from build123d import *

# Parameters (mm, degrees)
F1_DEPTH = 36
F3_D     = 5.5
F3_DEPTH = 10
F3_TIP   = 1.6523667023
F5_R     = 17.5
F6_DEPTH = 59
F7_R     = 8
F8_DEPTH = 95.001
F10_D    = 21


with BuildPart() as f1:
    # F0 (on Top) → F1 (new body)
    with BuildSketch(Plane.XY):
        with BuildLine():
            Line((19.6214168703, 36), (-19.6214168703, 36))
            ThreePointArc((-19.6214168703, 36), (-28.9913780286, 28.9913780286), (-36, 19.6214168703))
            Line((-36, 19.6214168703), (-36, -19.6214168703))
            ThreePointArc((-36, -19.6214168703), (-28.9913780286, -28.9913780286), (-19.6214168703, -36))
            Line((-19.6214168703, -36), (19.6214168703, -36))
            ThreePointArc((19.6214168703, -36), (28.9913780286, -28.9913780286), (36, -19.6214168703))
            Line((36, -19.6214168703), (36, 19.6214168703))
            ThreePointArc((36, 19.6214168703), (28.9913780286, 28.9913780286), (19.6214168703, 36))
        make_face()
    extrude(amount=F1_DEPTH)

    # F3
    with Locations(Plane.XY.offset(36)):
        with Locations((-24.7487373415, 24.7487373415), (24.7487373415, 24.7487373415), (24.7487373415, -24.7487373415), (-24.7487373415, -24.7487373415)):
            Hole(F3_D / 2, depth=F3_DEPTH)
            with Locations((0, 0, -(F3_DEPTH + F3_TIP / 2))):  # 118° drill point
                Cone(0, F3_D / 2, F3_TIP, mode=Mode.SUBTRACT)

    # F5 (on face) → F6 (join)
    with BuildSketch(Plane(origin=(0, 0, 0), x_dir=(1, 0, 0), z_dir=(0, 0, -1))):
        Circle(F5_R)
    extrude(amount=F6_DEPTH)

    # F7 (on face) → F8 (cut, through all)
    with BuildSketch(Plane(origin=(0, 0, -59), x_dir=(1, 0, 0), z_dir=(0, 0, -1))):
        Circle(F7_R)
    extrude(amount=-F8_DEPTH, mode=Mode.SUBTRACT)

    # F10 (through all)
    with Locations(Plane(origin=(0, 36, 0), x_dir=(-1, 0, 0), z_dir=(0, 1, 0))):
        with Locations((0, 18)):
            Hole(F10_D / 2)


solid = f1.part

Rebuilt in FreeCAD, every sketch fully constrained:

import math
import FreeCAD as App
import Part
import Sketcher
from FreeCAD import Vector
Q = App.Units.Quantity

doc = App.newDocument("Part")
body = doc.addObject("PartDesign::Body", "Body")

sketch1 = body.newObject("Sketcher::SketchObject", "Sketch")
sketch1.AttachmentSupport = (doc.getObject("XY_Plane"), [""])
sketch1.MapMode = "FlatFace"
sketch1.addGeometry([
    Part.LineSegment(Vector(19.621417, 36, 0), Vector(-19.621417, 36, 0)),
    Part.ArcOfCircle(Part.Circle(Vector(0, 0, 0), Vector(0, 0, 1), 41), math.radians(118.592123), math.radians(151.407877)),
    Part.LineSegment(Vector(-36, 19.621417, 0), Vector(-36, -19.621417, 0)),
    Part.ArcOfCircle(Part.Circle(Vector(0, 0, 0), Vector(0, 0, 1), 41), math.radians(-151.407877), math.radians(-118.592123)),
    Part.LineSegment(Vector(-19.621417, -36, 0), Vector(19.621417, -36, 0)),
    Part.ArcOfCircle(Part.Circle(Vector(0, 0, 0), Vector(0, 0, 1), 41), math.radians(-61.407877), math.radians(-28.592123)),
    Part.LineSegment(Vector(36, -19.621417, 0), Vector(36, 19.621417, 0)),
    Part.ArcOfCircle(Part.Circle(Vector(0, 0, 0), Vector(0, 0, 1), 41), math.radians(28.592123), math.radians(61.407877)),
], False)
sketch1.addConstraint([
    Sketcher.Constraint("Coincident", 0, 2, 1, 1),
    Sketcher.Constraint("Coincident", 1, 2, 2, 1),
    Sketcher.Constraint("Coincident", 2, 2, 3, 1),
    Sketcher.Constraint("Coincident", 3, 2, 4, 1),
    Sketcher.Constraint("Coincident", 4, 2, 5, 1),
    Sketcher.Constraint("Coincident", 5, 2, 6, 1),
    Sketcher.Constraint("Coincident", 6, 2, 7, 1),
    Sketcher.Constraint("Coincident", 7, 2, 0, 1),
    Sketcher.Constraint("Horizontal", 0),
    Sketcher.Constraint("Vertical", 2),
    Sketcher.Constraint("Horizontal", 4),
    Sketcher.Constraint("Vertical", 6),
    Sketcher.Constraint("Coincident", 1, 3, -1, 1),
    Sketcher.Constraint("Coincident", 3, 3, -1, 1),
    Sketcher.Constraint("Coincident", 5, 3, -1, 1),
    Sketcher.Constraint("Coincident", 7, 3, -1, 1),
    Sketcher.Constraint("Equal", 1, 3),
    Sketcher.Constraint("Equal", 3, 5),
    Sketcher.Constraint("Equal", 5, 7),
    Sketcher.Constraint("Horizontal", 2, 2, 5, 2),
    Sketcher.Constraint("Vertical", 0, 2, 3, 2),
    Sketcher.Constraint("Equal", 4, 2),
    Sketcher.Constraint("Radius", 1, Q("41 mm")),
    Sketcher.Constraint("DistanceY", -1, 1, 0, 2, Q("36 mm")),
])
pad1 = body.newObject("PartDesign::Pad", "Pad")
pad1.Profile = sketch1
pad1.Length = 36

sketch2 = body.newObject("Sketcher::SketchObject", "Sketch001")
sketch2.AttachmentSupport = (doc.getObject("XY_Plane"), [""])
sketch2.MapMode = "FlatFace"
sketch2.AttachmentOffset = App.Placement(Vector(0, 0, 36), App.Rotation())
sketch2.addGeometry([
    Part.Circle(Vector(-24.748737, 24.748737, 0), Vector(0, 0, 1), 2.75),
    Part.Circle(Vector(24.748737, 24.748737, 0), Vector(0, 0, 1), 2.75),
    Part.Circle(Vector(24.748737, -24.748737, 0), Vector(0, 0, 1), 2.75),
    Part.Circle(Vector(-24.748737, -24.748737, 0), Vector(0, 0, 1), 2.75),
], False)
sketch2.addConstraint([
    Sketcher.Constraint("Equal", 0, 1),
    Sketcher.Constraint("Equal", 1, 2),
    Sketcher.Constraint("Equal", 2, 3),
    Sketcher.Constraint("Symmetric", 0, 3, 2, 3, -1, 1),
    Sketcher.Constraint("Symmetric", 1, 3, 3, 3, -1, 1),
    Sketcher.Constraint("Symmetric", 0, 3, 1, 3, -2),
    Sketcher.Constraint("Diameter", 0, Q("5.5 mm")),
    Sketcher.Constraint("DistanceX", 0, 3, -1, 1, Q("24.748737 mm")),
    Sketcher.Constraint("DistanceY", -1, 1, 0, 3, Q("24.748737 mm")),
])
doc.recompute()
hole = body.newObject("PartDesign::Hole", "Hole")
hole.Profile = sketch2
hole.ThreadType = "None"
hole.Diameter = 5.5
hole.DepthType = "Dimension"
hole.Depth = 10
hole.DrillPoint = "Angled"
hole.DrillPointAngle = 118

sketch3 = body.newObject("Sketcher::SketchObject", "Sketch002")
sketch3.AttachmentSupport = (doc.getObject("XY_Plane"), [""])
sketch3.MapMode = "FlatFace"
sketch3.addGeometry(Part.Circle(Vector(0, 0, 0), Vector(0, 0, 1), 17.5), False)
sketch3.addConstraint([
    Sketcher.Constraint("Coincident", 0, 3, -1, 1),
    Sketcher.Constraint("Diameter", 0, Q("35 mm")),
])
pad2 = body.newObject("PartDesign::Pad", "Pad001")
pad2.Profile = sketch3
pad2.Length = 59
pad2.Reversed = True

sketch4 = body.newObject("Sketcher::SketchObject", "Sketch003")
sketch4.AttachmentSupport = (doc.getObject("XY_Plane"), [""])
sketch4.MapMode = "FlatFace"
sketch4.AttachmentOffset = App.Placement(Vector(0, 0, -59), App.Rotation())
sketch4.addGeometry(Part.Circle(Vector(0, 0, 0), Vector(0, 0, 1), 8), False)
sketch4.addConstraint([
    Sketcher.Constraint("Coincident", 0, 3, -1, 1),
    Sketcher.Constraint("Diameter", 0, Q("16 mm")),
])
pocket1 = body.newObject("PartDesign::Pocket", "Pocket")
pocket1.Profile = sketch4
pocket1.Type = "ThroughAll"
pocket1.Reversed = True

sketch5 = body.newObject("Sketcher::SketchObject", "Sketch004")
sketch5.AttachmentSupport = (doc.getObject("XZ_Plane"), [""])
sketch5.MapMode = "FlatFace"
sketch5.AttachmentOffset = App.Placement(Vector(0, 0, -36), App.Rotation())
sketch5.addGeometry(Part.Circle(Vector(0, 18, 0), Vector(0, 0, 1), 10.5), False)
sketch5.addConstraint([
    Sketcher.Constraint("PointOnObject", 0, 3, -2),
    Sketcher.Constraint("Diameter", 0, Q("21 mm")),
    Sketcher.Constraint("DistanceY", -1, 1, 0, 3, Q("18 mm")),
])
doc.recompute()
hole2 = body.newObject("PartDesign::Hole", "Hole001")
hole2.Profile = sketch5
hole2.ThreadType = "None"
hole2.Diameter = 21
hole2.DepthType = "ThroughAll"
hole2.Reversed = True

doc.recompute()
